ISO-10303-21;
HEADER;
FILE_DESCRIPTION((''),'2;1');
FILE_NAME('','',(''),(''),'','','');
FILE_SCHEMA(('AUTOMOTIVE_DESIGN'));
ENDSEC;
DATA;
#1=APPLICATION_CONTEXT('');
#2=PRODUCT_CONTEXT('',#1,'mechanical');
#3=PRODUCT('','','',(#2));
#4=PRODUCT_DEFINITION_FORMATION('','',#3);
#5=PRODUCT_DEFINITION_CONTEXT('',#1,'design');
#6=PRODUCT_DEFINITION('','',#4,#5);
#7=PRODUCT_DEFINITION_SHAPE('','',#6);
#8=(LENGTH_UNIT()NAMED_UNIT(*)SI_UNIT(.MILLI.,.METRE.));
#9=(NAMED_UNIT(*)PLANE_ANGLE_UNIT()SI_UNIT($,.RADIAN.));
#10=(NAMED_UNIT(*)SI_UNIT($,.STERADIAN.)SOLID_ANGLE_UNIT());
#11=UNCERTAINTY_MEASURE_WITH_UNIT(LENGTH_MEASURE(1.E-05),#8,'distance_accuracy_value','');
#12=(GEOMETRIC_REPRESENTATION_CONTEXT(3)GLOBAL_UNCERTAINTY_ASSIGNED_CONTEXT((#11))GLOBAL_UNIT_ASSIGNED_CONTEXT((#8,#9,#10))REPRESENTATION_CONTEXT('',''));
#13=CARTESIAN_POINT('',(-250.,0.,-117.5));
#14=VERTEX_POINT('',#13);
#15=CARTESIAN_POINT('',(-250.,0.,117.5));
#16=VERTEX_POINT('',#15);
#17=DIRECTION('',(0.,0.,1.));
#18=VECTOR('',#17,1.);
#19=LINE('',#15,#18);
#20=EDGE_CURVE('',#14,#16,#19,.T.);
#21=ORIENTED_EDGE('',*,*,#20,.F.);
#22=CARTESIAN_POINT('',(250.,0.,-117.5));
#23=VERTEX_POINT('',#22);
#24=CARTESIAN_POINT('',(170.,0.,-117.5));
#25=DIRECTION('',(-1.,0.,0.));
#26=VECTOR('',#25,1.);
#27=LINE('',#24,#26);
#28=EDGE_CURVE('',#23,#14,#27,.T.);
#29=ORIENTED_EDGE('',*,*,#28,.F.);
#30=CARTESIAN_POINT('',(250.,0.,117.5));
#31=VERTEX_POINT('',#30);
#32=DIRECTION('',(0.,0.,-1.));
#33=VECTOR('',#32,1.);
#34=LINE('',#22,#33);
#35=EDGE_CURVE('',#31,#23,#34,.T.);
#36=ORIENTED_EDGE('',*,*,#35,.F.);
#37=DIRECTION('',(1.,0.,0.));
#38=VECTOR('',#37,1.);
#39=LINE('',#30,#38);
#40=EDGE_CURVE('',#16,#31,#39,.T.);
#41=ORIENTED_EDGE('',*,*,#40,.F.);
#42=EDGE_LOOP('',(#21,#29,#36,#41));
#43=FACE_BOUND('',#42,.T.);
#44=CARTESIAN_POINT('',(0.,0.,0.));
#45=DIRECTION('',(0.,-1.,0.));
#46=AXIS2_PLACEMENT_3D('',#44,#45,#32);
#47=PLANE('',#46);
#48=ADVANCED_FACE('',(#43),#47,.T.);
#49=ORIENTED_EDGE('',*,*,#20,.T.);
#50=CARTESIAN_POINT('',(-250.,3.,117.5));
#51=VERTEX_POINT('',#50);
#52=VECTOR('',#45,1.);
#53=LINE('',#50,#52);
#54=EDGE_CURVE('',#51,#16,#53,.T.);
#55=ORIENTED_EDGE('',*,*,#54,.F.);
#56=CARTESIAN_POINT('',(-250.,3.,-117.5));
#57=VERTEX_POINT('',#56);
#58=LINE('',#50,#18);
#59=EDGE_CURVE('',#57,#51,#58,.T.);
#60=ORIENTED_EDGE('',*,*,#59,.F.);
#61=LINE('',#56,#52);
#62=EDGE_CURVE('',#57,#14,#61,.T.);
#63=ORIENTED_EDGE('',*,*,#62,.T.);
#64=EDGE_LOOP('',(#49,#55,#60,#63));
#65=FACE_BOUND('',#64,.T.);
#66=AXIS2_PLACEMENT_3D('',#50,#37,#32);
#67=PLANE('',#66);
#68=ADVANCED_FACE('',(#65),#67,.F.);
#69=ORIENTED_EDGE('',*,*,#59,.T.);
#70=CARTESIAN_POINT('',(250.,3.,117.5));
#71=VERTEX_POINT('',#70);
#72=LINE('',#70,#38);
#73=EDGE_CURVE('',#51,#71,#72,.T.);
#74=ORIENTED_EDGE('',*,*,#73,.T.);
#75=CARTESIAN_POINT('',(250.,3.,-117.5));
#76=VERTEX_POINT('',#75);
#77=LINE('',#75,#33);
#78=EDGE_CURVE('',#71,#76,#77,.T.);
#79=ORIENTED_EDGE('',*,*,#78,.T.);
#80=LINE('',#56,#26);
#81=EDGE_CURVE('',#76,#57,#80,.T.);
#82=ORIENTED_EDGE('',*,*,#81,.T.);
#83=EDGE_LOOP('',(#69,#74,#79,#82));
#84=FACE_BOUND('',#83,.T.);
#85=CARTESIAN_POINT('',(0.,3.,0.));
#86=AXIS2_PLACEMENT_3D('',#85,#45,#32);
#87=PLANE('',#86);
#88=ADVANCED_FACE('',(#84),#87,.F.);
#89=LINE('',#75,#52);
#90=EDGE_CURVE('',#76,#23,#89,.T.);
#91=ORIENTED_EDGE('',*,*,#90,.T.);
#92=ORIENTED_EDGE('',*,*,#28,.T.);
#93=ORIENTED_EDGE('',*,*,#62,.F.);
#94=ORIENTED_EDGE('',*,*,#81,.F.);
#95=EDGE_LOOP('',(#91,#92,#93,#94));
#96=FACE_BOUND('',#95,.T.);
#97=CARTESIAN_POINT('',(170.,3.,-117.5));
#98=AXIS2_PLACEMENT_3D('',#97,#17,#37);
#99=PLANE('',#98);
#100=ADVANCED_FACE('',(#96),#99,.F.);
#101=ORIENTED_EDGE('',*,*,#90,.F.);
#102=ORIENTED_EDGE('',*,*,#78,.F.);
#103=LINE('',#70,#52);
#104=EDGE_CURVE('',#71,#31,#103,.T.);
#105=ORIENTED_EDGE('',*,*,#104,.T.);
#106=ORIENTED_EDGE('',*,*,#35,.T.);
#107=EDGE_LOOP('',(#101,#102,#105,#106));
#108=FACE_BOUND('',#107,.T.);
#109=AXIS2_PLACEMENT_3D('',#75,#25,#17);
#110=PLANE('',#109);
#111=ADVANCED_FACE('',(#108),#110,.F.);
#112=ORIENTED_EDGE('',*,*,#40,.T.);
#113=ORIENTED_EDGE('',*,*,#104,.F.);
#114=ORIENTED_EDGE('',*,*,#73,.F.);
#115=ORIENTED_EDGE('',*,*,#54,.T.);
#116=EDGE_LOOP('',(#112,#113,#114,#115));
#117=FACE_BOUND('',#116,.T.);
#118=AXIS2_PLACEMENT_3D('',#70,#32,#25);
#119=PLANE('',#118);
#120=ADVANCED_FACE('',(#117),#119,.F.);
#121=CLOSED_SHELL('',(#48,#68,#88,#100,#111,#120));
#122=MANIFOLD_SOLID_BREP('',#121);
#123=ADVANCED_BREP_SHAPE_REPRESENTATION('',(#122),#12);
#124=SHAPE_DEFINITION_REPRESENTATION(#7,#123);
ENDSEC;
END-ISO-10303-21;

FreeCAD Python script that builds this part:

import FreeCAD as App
import Part
import Sketcher

doc = App.newDocument("Part")
body = doc.addObject("PartDesign::Body", "Body")

sketch1 = doc.addObject("Sketcher::SketchObject", "Sketch")
body.addObject(sketch1)
sketch1.AttachmentSupport = (doc.XZ_Plane, [""])
sketch1.MapMode = "FlatFace"
sketch1.addGeometry([
    Part.LineSegment(App.Vector(250, -118, 0), App.Vector(-250, -118, 0)),
    Part.LineSegment(App.Vector(-250, -118, 0), App.Vector(-250, 118, 0)),
    Part.LineSegment(App.Vector(-250, 118, 0), App.Vector(250, 118, 0)),
    Part.LineSegment(App.Vector(250, 118, 0), App.Vector(250, -118, 0)),
], False)
sketch1.addConstraint([
    Sketcher.Constraint("Coincident", 0, 2, 1, 1),
    Sketcher.Constraint("Coincident", 1, 2, 2, 1),
    Sketcher.Constraint("Coincident", 2, 2, 3, 1),
    Sketcher.Constraint("Coincident", 3, 2, 0, 1),
    Sketcher.Constraint("Horizontal", 0),
    Sketcher.Constraint("Vertical", 1),
    Sketcher.Constraint("Horizontal", 2),
    Sketcher.Constraint("Vertical", 3),
    Sketcher.Constraint("Symmetric", 0, 2, 2, 2, -1, 1),
    Sketcher.Constraint("DistanceX", 0, 2, 0, 1, 500.0),
    Sketcher.Constraint("DistanceY", 1, 1, 1, 2, 235.0),
])
pad1 = doc.addObject("PartDesign::Pad", "Pad")
body.addObject(pad1)
pad1.Profile = sketch1
pad1.Length = 3
pad1.Reversed = True

doc.recompute()
